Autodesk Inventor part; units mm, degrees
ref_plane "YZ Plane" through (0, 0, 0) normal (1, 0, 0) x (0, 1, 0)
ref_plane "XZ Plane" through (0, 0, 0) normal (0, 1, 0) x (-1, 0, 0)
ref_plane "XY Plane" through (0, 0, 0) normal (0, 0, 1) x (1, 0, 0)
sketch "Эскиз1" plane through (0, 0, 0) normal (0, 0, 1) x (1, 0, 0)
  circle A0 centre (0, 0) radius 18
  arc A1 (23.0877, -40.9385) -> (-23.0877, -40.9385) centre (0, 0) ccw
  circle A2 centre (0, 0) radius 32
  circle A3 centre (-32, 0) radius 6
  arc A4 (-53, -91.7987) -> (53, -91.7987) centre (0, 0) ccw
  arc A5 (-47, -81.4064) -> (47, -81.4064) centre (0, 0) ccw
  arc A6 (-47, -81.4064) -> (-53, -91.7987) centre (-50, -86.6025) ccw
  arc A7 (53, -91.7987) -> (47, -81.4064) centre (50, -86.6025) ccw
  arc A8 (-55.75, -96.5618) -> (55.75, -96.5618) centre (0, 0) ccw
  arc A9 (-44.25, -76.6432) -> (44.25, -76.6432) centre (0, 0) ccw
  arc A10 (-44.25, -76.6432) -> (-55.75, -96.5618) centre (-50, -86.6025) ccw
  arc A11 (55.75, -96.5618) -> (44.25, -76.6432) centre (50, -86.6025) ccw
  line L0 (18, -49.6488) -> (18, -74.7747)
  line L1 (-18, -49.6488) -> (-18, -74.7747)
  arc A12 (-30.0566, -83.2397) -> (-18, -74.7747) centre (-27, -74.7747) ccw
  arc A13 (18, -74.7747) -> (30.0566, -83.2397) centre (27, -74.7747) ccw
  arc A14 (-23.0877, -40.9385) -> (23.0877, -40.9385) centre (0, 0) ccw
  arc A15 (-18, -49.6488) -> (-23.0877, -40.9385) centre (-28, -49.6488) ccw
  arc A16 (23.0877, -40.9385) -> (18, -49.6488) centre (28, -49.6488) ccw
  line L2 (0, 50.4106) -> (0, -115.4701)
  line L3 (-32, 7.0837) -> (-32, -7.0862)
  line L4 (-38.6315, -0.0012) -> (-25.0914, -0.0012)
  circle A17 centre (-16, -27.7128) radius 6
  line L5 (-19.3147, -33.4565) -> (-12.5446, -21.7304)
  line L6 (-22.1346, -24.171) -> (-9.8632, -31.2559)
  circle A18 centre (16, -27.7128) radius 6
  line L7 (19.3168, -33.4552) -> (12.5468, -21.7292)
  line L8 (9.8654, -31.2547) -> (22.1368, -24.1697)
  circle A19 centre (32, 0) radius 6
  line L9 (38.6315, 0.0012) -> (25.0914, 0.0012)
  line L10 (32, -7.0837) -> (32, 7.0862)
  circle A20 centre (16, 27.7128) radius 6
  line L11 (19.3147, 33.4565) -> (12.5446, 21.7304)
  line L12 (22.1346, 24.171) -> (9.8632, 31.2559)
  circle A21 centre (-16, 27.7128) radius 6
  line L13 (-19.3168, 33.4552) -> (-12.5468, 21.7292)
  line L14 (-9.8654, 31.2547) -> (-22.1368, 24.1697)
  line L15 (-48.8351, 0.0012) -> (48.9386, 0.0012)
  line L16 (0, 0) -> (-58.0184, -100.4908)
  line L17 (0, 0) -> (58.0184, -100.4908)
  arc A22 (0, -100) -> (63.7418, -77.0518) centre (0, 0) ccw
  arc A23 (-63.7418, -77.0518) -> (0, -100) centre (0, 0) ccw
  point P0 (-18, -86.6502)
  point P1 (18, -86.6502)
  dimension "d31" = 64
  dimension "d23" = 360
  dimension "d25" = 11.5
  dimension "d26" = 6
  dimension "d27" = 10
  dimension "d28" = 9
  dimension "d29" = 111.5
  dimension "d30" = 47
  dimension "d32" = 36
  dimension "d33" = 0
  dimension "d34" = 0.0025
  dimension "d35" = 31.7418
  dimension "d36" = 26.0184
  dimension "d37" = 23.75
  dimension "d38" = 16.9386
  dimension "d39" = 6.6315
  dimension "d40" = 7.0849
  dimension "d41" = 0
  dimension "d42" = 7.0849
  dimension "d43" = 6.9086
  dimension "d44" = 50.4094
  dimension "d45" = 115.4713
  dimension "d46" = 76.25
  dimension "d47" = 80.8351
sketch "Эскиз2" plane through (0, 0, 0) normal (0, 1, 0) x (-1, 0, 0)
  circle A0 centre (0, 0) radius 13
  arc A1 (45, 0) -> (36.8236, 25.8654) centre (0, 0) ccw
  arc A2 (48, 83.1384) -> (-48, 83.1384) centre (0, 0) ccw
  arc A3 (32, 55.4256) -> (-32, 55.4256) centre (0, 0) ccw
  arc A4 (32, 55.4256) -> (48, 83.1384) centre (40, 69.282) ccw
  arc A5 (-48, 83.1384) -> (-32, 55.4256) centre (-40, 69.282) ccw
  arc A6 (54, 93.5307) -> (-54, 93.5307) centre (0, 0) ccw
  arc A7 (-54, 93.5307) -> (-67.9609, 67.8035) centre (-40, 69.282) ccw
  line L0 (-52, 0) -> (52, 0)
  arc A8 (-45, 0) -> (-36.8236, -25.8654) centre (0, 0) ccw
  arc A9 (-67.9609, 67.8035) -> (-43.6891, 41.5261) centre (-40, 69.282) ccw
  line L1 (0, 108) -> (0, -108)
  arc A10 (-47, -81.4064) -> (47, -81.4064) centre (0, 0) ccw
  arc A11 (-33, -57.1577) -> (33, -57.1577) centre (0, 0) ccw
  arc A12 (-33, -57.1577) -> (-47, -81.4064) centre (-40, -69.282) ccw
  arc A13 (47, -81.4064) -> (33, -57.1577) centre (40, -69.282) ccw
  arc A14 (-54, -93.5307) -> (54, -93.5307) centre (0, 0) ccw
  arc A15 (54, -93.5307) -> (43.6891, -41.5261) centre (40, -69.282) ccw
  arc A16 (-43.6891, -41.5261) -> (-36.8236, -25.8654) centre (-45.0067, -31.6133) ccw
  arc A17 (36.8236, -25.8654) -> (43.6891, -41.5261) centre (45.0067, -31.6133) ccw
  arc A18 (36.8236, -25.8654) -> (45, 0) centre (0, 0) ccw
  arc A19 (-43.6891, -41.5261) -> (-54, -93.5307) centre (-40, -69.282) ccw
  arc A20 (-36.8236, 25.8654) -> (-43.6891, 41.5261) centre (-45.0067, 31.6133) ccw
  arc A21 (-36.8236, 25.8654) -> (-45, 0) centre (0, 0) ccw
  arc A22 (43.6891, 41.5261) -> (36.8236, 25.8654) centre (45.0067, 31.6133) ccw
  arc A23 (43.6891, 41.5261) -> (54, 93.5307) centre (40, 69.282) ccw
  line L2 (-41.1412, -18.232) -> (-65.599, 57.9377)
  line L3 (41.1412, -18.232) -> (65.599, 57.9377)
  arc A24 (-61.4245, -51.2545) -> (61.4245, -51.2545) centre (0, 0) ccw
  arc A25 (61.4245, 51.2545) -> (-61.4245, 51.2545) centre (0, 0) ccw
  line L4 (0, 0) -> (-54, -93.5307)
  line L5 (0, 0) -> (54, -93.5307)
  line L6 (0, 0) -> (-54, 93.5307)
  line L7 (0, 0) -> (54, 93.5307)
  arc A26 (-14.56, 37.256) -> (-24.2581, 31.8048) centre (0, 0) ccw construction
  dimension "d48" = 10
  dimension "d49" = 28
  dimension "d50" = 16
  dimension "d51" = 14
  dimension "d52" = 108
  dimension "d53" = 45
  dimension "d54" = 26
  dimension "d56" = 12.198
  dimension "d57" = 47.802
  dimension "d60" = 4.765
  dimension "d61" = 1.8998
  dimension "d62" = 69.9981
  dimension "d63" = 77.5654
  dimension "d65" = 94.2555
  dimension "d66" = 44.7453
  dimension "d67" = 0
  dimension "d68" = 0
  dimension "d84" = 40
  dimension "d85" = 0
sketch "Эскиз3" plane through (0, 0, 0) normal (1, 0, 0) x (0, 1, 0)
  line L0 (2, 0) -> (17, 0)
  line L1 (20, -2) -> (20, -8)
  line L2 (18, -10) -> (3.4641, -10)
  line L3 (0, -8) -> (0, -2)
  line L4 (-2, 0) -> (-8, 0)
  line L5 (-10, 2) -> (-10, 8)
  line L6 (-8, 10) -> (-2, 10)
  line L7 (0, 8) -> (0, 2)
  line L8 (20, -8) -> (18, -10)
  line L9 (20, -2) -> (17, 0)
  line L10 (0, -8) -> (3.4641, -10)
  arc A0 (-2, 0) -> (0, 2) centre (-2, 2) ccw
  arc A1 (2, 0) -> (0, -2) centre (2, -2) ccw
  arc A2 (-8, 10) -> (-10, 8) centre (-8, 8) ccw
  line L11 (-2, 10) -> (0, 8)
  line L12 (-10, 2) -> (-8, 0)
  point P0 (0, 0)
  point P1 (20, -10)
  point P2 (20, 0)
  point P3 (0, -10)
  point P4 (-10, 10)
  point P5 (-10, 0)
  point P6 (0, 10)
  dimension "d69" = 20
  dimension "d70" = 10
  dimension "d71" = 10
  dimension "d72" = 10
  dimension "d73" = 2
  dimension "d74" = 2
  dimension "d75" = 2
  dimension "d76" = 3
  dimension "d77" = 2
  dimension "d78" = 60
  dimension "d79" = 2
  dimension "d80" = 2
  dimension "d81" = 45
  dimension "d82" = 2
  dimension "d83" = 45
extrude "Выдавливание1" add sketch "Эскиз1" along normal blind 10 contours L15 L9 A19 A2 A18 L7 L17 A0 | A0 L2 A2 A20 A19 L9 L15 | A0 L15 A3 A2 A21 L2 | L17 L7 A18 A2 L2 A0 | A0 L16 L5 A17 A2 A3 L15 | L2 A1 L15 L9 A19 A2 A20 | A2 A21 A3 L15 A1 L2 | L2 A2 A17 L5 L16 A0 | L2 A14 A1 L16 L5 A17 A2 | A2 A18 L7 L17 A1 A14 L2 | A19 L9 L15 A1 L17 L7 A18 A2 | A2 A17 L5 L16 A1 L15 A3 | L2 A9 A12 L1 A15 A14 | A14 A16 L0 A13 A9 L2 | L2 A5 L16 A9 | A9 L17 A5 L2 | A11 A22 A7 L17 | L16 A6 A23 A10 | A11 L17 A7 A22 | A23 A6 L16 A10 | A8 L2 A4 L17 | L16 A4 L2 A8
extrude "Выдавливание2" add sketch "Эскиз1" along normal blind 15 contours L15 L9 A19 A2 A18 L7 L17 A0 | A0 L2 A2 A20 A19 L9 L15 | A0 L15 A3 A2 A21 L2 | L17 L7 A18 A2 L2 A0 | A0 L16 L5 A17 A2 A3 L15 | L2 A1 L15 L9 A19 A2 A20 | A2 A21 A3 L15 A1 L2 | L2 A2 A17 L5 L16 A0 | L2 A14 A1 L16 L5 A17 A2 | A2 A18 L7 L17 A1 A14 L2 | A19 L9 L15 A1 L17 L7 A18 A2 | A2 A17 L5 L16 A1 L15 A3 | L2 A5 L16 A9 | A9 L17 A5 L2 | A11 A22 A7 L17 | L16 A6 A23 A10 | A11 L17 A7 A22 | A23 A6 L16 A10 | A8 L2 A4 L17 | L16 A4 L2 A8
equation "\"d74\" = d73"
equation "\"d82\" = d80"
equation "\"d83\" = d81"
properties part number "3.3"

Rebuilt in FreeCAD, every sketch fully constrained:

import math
import FreeCAD as App
import Part
import Sketcher
from FreeCAD import Vector
Q = App.Units.Quantity

doc = App.newDocument("Part")
body = doc.addObject("PartDesign::Body", "Body")

# Sketch on XY plane
sketch1 = body.newObject("Sketcher::SketchObject", "Sketch")
sketch1.AttachmentSupport = (doc.getObject("XY_Plane"), [""])
sketch1.MapMode = "FlatFace"
sketch1.addGeometry(Part.ArcOfCircle(Part.Circle(Vector(-28, -50, 0), Vector(0, 0, 1), 10), math.radians(0), math.radians(61)), False)
sketch1.addGeometry(Part.LineSegment(Vector(-18, -50, 0), Vector(-18, -75, 0)), False)
sketch1.addGeometry(Part.ArcOfCircle(Part.Circle(Vector(-27, -75, 0), Vector(0, 0, 1), 9), math.radians(-110), math.radians(0)), False)
sketch1.addGeometry(Part.ArcOfCircle(Part.Circle(Vector(0, 0, 0), Vector(0, 0, 1), 88), math.radians(-120), math.radians(-109.85)), False)
sketch1.addGeometry(Part.ArcOfCircle(Part.Circle(Vector(-50, -87, 0), Vector(0, 0, 1), 12), math.radians(60), math.radians(240)), False)
sketch1.addGeometry(Part.ArcOfCircle(Part.Circle(Vector(0, 0, 0), Vector(0, 0, 1), 111), math.radians(-120), math.radians(-60)), False)
sketch1.addGeometry(Part.ArcOfCircle(Part.Circle(Vector(50, -87, 0), Vector(0, 0, 1), 12), math.radians(-60), math.radians(120)), False)
sketch1.addGeometry(Part.ArcOfCircle(Part.Circle(Vector(0, 0, 0), Vector(0, 0, 1), 88), math.radians(-70.15), math.radians(-60)), False)
sketch1.addGeometry(Part.ArcOfCircle(Part.Circle(Vector(27, -75, 0), Vector(0, 0, 1), 9), math.radians(180), math.radians(290)), False)
sketch1.addGeometry(Part.LineSegment(Vector(18, -75, 0), Vector(18, -50, 0)), False)
sketch1.addGeometry(Part.ArcOfCircle(Part.Circle(Vector(28, -50, 0), Vector(0, 0, 1), 10), math.radians(119), math.radians(180)), False)
sketch1.addGeometry(Part.ArcOfCircle(Part.Circle(Vector(0, 0, 0), Vector(0, 0, 1), 47), math.radians(-61), math.radians(241)), False)
sketch1.addGeometry(Part.Circle(Vector(32, 0, 0), Vector(0, 0, 1), 6), False)
sketch1.addGeometry(Part.Circle(Vector(16, -28, 0), Vector(0, 0, 1), 6), False)
sketch1.addGeometry(Part.Circle(Vector(0, 0, 0), Vector(0, 0, 1), 18), False)
sketch1.addGeometry(Part.Circle(Vector(16, 28, 0), Vector(0, 0, 1), 6), False)
sketch1.addGeometry(Part.Circle(Vector(-32, 0, 0), Vector(0, 0, 1), 6), False)
sketch1.addGeometry(Part.Circle(Vector(-16, 28, 0), Vector(0, 0, 1), 6), False)
sketch1.addGeometry(Part.Circle(Vector(-16, -28, 0), Vector(0, 0, 1), 6), False)
sketch1.addGeometry(Part.ArcOfCircle(Part.Circle(Vector(50, -87, 0), Vector(0, 0, 1), 6), math.radians(-60), math.radians(120)), False)
sketch1.addGeometry(Part.ArcOfCircle(Part.Circle(Vector(0, 0, 0), Vector(0, 0, 1), 106), math.radians(-120), math.radians(-60)), False)
sketch1.addGeometry(Part.ArcOfCircle(Part.Circle(Vector(-50, -87, 0), Vector(0, 0, 1), 6), math.radians(60), math.radians(240)), False)
sketch1.addGeometry(Part.ArcOfCircle(Part.Circle(Vector(0, 0, 0), Vector(0, 0, 1), 94), math.radians(-120), math.radians(-60)), False)
sketch1.addConstraint(Sketcher.Constraint("Tangent", 0, 1, 1, 1))
sketch1.addConstraint(Sketcher.Constraint("Tangent", 1, 2, 2, 2))
sketch1.addConstraint(Sketcher.Constraint("Tangent", 2, 1, 3, 2))
sketch1.addConstraint(Sketcher.Constraint("Tangent", 3, 1, 4, 1))
sketch1.addConstraint(Sketcher.Constraint("Tangent", 4, 2, 5, 1))
sketch1.addConstraint(Sketcher.Constraint("Tangent", 5, 2, 6, 1))
sketch1.addConstraint(Sketcher.Constraint("Tangent", 6, 2, 7, 2))
sketch1.addConstraint(Sketcher.Constraint("Tangent", 7, 1, 8, 2))
sketch1.addConstraint(Sketcher.Constraint("Tangent", 8, 1, 9, 1))
sketch1.addConstraint(Sketcher.Constraint("Tangent", 9, 2, 10, 2))
sketch1.addConstraint(Sketcher.Constraint("Tangent", 10, 1, 11, 1))
sketch1.addConstraint(Sketcher.Constraint("Tangent", 11, 2, 0, 2))
sketch1.addConstraint(Sketcher.Constraint("Tangent", 19, 1, 20, 2))
sketch1.addConstraint(Sketcher.Constraint("Tangent", 20, 1, 21, 2))
sketch1.addConstraint(Sketcher.Constraint("Tangent", 21, 1, 22, 1))
sketch1.addConstraint(Sketcher.Constraint("Tangent", 22, 2, 19, 2))
sketch1.addConstraint(Sketcher.Constraint("Vertical", 1))
sketch1.addConstraint(Sketcher.Constraint("Vertical", 9))
sketch1.addConstraint(Sketcher.Constraint("Coincident", 3, 3, -1, 1))
sketch1.addConstraint(Sketcher.Constraint("Coincident", 5, 3, -1, 1))
sketch1.addConstraint(Sketcher.Constraint("Coincident", 7, 3, -1, 1))
sketch1.addConstraint(Sketcher.Constraint("Coincident", 11, 3, -1, 1))
sketch1.addConstraint(Sketcher.Constraint("Coincident", 14, 3, -1, 1))
sketch1.addConstraint(Sketcher.Constraint("Coincident", 20, 3, -1, 1))
sketch1.addConstraint(Sketcher.Constraint("Coincident", 22, 3, -1, 1))
sketch1.addConstraint(Sketcher.Constraint("Coincident", 19, 3, 6, 3))
sketch1.addConstraint(Sketcher.Constraint("Coincident", 21, 3, 4, 3))
sketch1.addConstraint(Sketcher.Constraint("Equal", 2, 8))
sketch1.addConstraint(Sketcher.Constraint("Equal", 0, 10))
sketch1.addConstraint(Sketcher.Constraint("Equal", 12, 13))
sketch1.addConstraint(Sketcher.Constraint("Equal", 13, 15))
sketch1.addConstraint(Sketcher.Constraint("Equal", 15, 16))
sketch1.addConstraint(Sketcher.Constraint("Equal", 16, 17))
sketch1.addConstraint(Sketcher.Constraint("Equal", 17, 18))
sketch1.addConstraint(Sketcher.Constraint("Equal", 18, 19))
sketch1.addConstraint(Sketcher.Constraint("Symmetric", 12, 3, 16, 3, -1, 1))
sketch1.addConstraint(Sketcher.Constraint("Symmetric", 13, 3, 17, 3, -1, 1))
sketch1.addConstraint(Sketcher.Constraint("Symmetric", 15, 3, 18, 3, -1, 1))
sketch1.addConstraint(Sketcher.Constraint("Symmetric", 15, 3, 17, 3, -2))
sketch1.addConstraint(Sketcher.Constraint("PointOnObject", 12, 3, -1))
sketch1.addConstraint(Sketcher.Constraint("Horizontal", 4, 3, 6, 3))
sketch1.addConstraint(Sketcher.Constraint("Horizontal", 2, 3, 8, 3))
sketch1.addConstraint(Sketcher.Constraint("Diameter", 12, Q("12 mm")))
sketch1.addConstraint(Sketcher.Constraint("Diameter", 14, Q("36 mm")))
sketch1.addConstraint(Sketcher.Constraint("Radius", 0, Q("10 mm")))
sketch1.addConstraint(Sketcher.Constraint("Radius", 2, Q("9 mm")))
sketch1.addConstraint(Sketcher.Constraint("Radius", 11, Q("47 mm")))
sketch1.addConstraint(Sketcher.Constraint("Radius", 4, Q("11.5 mm")))
sketch1.addConstraint(Sketcher.Constraint("Radius", 5, Q("111.5 mm")))
sketch1.addConstraint(Sketcher.Constraint("DistanceX", 21, 1, -1, 1, Q("47 mm")))
sketch1.addConstraint(Sketcher.Constraint("DistanceX", 0, 3, -1, 1, Q("28 mm")))
sketch1.addConstraint(Sketcher.Constraint("DistanceX", -1, 1, 12, 3, Q("32 mm")))
sketch1.addConstraint(Sketcher.Constraint("DistanceX", -1, 1, 13, 3, Q("16 mm")))
sketch1.addConstraint(Sketcher.Constraint("DistanceY", 10, 3, 13, 3, Q("21.936 mm")))
pad1 = body.newObject("PartDesign::Pad", "Pad")
pad1.Profile = sketch1
pad1.Length = 10

# Sketch on XY plane
sketch2 = body.newObject("Sketcher::SketchObject", "Sketch001")
sketch2.AttachmentSupport = (doc.getObject("XY_Plane"), [""])
sketch2.MapMode = "FlatFace"
sketch2.addGeometry(Part.Circle(Vector(0, 0, 0), Vector(0, 0, 1), 47), False)
sketch2.addGeometry(Part.Circle(Vector(32, 0, 0), Vector(0, 0, 1), 6), False)
sketch2.addGeometry(Part.Circle(Vector(16, -28, 0), Vector(0, 0, 1), 6), False)
sketch2.addGeometry(Part.Circle(Vector(0, 0, 0), Vector(0, 0, 1), 18), False)
sketch2.addGeometry(Part.Circle(Vector(16, 28, 0), Vector(0, 0, 1), 6), False)
sketch2.addGeometry(Part.Circle(Vector(-32, 0, 0), Vector(0, 0, 1), 6), False)
sketch2.addGeometry(Part.Circle(Vector(-16, 28, 0), Vector(0, 0, 1), 6), False)
sketch2.addGeometry(Part.Circle(Vector(-16, -28, 0), Vector(0, 0, 1), 6), False)
sketch2.addGeometry(Part.ArcOfCircle(Part.Circle(Vector(-50, -87, 0), Vector(0, 0, 1), 12), math.radians(60), math.radians(240)), False)
sketch2.addGeometry(Part.ArcOfCircle(Part.Circle(Vector(0, 0, 0), Vector(0, 0, 1), 111), math.radians(-120), math.radians(-60)), False)
sketch2.addGeometry(Part.ArcOfCircle(Part.Circle(Vector(50, -87, 0), Vector(0, 0, 1), 12), math.radians(-60), math.radians(120)), False)
sketch2.addGeometry(Part.ArcOfCircle(Part.Circle(Vector(0, 0, 0), Vector(0, 0, 1), 88), math.radians(-120), math.radians(-60)), False)
sketch2.addGeometry(Part.ArcOfCircle(Part.Circle(Vector(0, 0, 0), Vector(0, 0, 1), 94), math.radians(-120), math.radians(-60)), False)
sketch2.addGeometry(Part.ArcOfCircle(Part.Circle(Vector(50, -87, 0), Vector(0, 0, 1), 6), math.radians(-60), math.radians(120)), False)
sketch2.addGeometry(Part.ArcOfCircle(Part.Circle(Vector(0, 0, 0), Vector(0, 0, 1), 106), math.radians(-120), math.radians(-60)), False)
sketch2.addGeometry(Part.ArcOfCircle(Part.Circle(Vector(-50, -87, 0), Vector(0, 0, 1), 6), math.radians(60), math.radians(240)), False)
sketch2.addConstraint(Sketcher.Constraint("Tangent", 8, 2, 9, 1))
sketch2.addConstraint(Sketcher.Constraint("Tangent", 9, 2, 10, 1))
sketch2.addConstraint(Sketcher.Constraint("Tangent", 10, 2, 11, 2))
sketch2.addConstraint(Sketcher.Constraint("Tangent", 11, 1, 8, 1))
sketch2.addConstraint(Sketcher.Constraint("Tangent", 12, 2, 13, 2))
sketch2.addConstraint(Sketcher.Constraint("Tangent", 13, 1, 14, 2))
sketch2.addConstraint(Sketcher.Constraint("Tangent", 14, 1, 15, 2))
sketch2.addConstraint(Sketcher.Constraint("Tangent", 15, 1, 12, 1))
sketch2.addConstraint(Sketcher.Constraint("Coincident", 0, 3, -1, 1))
sketch2.addConstraint(Sketcher.Constraint("Coincident", 3, 3, -1, 1))
sketch2.addConstraint(Sketcher.Constraint("Coincident", 9, 3, -1, 1))
sketch2.addConstraint(Sketcher.Constraint("Coincident", 11, 3, -1, 1))
sketch2.addConstraint(Sketcher.Constraint("Coincident", 12, 3, -1, 1))
sketch2.addConstraint(Sketcher.Constraint("Coincident", 14, 3, -1, 1))
sketch2.addConstraint(Sketcher.Constraint("Coincident", 13, 3, 10, 3))
sketch2.addConstraint(Sketcher.Constraint("Equal", 1, 2))
sketch2.addConstraint(Sketcher.Constraint("Equal", 2, 4))
sketch2.addConstraint(Sketcher.Constraint("Equal", 4, 5))
sketch2.addConstraint(Sketcher.Constraint("Equal", 5, 6))
sketch2.addConstraint(Sketcher.Constraint("Equal", 6, 7))
sketch2.addConstraint(Sketcher.Constraint("Equal", 7, 13))
sketch2.addConstraint(Sketcher.Constraint("Symmetric", 1, 3, 5, 3, -1, 1))
sketch2.addConstraint(Sketcher.Constraint("Symmetric", 2, 3, 6, 3, -1, 1))
sketch2.addConstraint(Sketcher.Constraint("Symmetric", 4, 3, 7, 3, -1, 1))
sketch2.addConstraint(Sketcher.Constraint("Symmetric", 4, 3, 6, 3, -2))
sketch2.addConstraint(Sketcher.Constraint("PointOnObject", 1, 3, -1))
sketch2.addConstraint(Sketcher.Constraint("Horizontal", 8, 3, 10, 3))
sketch2.addConstraint(Sketcher.Constraint("Horizontal", 13, 3, 15, 3))
sketch2.addConstraint(Sketcher.Constraint("Diameter", 0, Q("94 mm")))
sketch2.addConstraint(Sketcher.Constraint("Diameter", 1, Q("12 mm")))
sketch2.addConstraint(Sketcher.Constraint("Diameter", 3, Q("36 mm")))
sketch2.addConstraint(Sketcher.Constraint("Radius", 8, Q("11.5 mm")))
sketch2.addConstraint(Sketcher.Constraint("Radius", 9, Q("111.5 mm")))
sketch2.addConstraint(Sketcher.Constraint("DistanceX", -1, 1, 12, 2, Q("47 mm")))
sketch2.addConstraint(Sketcher.Constraint("DistanceX", 5, 3, 1, 3, Q("64 mm")))
sketch2.addConstraint(Sketcher.Constraint("DistanceX", -1, 1, 2, 3, Q("16 mm")))
sketch2.addConstraint(Sketcher.Constraint("DistanceY", 8, 2, 7, 3, Q("68.849 mm")))
pad2 = body.newObject("PartDesign::Pad", "Pad001")
pad2.Profile = sketch2
pad2.Length = 15

doc.recompute()
